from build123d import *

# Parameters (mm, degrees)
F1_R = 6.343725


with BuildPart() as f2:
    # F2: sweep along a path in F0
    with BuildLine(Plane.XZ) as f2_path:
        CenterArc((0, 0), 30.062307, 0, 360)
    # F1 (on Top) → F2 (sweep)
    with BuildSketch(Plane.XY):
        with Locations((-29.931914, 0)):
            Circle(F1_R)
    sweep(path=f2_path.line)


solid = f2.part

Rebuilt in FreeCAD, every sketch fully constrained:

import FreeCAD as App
import Part
import Sketcher

doc = App.newDocument("Part")
body = doc.addObject("PartDesign::Body", "Body")

sketch1 = body.newObject("Sketcher::SketchObject", "Sketch")
sketch1.AttachmentSupport = (doc.getObject("XY_Plane"), [""])
sketch1.MapMode = "FlatFace"
sketch1.addGeometry(Part.Circle(App.Vector(-30, 0, 0), App.Vector(0, 0, 1), 6), False)
sketch1.addConstraint(Sketcher.Constraint("PointOnObject", 0, 3, -1))
sketch1.addConstraint(Sketcher.Constraint("Diameter", 0, 12.68745))
sketch1.addConstraint(Sketcher.Constraint("DistanceX", 0, 3, -1, 1, 29.931914))

sketch2 = body.newObject("Sketcher::SketchObject", "Sketch001")
sketch2.AttachmentSupport = (doc.getObject("XZ_Plane"), [""])
sketch2.MapMode = "FlatFace"
sketch2.addGeometry(Part.Circle(App.Vector(0, 0, 0), App.Vector(0, 0, 1), 30), False)
sketch2.addConstraint(Sketcher.Constraint("Coincident", 0, 3, -1, 1))
sketch2.addConstraint(Sketcher.Constraint("Diameter", 0, 60.124614))
doc.recompute()

additivepipe = body.newObject("PartDesign::AdditivePipe", "AdditivePipe")
additivepipe.Profile = sketch1
additivepipe.Spine = (sketch2, ["Edge1"])

doc.recompute()
